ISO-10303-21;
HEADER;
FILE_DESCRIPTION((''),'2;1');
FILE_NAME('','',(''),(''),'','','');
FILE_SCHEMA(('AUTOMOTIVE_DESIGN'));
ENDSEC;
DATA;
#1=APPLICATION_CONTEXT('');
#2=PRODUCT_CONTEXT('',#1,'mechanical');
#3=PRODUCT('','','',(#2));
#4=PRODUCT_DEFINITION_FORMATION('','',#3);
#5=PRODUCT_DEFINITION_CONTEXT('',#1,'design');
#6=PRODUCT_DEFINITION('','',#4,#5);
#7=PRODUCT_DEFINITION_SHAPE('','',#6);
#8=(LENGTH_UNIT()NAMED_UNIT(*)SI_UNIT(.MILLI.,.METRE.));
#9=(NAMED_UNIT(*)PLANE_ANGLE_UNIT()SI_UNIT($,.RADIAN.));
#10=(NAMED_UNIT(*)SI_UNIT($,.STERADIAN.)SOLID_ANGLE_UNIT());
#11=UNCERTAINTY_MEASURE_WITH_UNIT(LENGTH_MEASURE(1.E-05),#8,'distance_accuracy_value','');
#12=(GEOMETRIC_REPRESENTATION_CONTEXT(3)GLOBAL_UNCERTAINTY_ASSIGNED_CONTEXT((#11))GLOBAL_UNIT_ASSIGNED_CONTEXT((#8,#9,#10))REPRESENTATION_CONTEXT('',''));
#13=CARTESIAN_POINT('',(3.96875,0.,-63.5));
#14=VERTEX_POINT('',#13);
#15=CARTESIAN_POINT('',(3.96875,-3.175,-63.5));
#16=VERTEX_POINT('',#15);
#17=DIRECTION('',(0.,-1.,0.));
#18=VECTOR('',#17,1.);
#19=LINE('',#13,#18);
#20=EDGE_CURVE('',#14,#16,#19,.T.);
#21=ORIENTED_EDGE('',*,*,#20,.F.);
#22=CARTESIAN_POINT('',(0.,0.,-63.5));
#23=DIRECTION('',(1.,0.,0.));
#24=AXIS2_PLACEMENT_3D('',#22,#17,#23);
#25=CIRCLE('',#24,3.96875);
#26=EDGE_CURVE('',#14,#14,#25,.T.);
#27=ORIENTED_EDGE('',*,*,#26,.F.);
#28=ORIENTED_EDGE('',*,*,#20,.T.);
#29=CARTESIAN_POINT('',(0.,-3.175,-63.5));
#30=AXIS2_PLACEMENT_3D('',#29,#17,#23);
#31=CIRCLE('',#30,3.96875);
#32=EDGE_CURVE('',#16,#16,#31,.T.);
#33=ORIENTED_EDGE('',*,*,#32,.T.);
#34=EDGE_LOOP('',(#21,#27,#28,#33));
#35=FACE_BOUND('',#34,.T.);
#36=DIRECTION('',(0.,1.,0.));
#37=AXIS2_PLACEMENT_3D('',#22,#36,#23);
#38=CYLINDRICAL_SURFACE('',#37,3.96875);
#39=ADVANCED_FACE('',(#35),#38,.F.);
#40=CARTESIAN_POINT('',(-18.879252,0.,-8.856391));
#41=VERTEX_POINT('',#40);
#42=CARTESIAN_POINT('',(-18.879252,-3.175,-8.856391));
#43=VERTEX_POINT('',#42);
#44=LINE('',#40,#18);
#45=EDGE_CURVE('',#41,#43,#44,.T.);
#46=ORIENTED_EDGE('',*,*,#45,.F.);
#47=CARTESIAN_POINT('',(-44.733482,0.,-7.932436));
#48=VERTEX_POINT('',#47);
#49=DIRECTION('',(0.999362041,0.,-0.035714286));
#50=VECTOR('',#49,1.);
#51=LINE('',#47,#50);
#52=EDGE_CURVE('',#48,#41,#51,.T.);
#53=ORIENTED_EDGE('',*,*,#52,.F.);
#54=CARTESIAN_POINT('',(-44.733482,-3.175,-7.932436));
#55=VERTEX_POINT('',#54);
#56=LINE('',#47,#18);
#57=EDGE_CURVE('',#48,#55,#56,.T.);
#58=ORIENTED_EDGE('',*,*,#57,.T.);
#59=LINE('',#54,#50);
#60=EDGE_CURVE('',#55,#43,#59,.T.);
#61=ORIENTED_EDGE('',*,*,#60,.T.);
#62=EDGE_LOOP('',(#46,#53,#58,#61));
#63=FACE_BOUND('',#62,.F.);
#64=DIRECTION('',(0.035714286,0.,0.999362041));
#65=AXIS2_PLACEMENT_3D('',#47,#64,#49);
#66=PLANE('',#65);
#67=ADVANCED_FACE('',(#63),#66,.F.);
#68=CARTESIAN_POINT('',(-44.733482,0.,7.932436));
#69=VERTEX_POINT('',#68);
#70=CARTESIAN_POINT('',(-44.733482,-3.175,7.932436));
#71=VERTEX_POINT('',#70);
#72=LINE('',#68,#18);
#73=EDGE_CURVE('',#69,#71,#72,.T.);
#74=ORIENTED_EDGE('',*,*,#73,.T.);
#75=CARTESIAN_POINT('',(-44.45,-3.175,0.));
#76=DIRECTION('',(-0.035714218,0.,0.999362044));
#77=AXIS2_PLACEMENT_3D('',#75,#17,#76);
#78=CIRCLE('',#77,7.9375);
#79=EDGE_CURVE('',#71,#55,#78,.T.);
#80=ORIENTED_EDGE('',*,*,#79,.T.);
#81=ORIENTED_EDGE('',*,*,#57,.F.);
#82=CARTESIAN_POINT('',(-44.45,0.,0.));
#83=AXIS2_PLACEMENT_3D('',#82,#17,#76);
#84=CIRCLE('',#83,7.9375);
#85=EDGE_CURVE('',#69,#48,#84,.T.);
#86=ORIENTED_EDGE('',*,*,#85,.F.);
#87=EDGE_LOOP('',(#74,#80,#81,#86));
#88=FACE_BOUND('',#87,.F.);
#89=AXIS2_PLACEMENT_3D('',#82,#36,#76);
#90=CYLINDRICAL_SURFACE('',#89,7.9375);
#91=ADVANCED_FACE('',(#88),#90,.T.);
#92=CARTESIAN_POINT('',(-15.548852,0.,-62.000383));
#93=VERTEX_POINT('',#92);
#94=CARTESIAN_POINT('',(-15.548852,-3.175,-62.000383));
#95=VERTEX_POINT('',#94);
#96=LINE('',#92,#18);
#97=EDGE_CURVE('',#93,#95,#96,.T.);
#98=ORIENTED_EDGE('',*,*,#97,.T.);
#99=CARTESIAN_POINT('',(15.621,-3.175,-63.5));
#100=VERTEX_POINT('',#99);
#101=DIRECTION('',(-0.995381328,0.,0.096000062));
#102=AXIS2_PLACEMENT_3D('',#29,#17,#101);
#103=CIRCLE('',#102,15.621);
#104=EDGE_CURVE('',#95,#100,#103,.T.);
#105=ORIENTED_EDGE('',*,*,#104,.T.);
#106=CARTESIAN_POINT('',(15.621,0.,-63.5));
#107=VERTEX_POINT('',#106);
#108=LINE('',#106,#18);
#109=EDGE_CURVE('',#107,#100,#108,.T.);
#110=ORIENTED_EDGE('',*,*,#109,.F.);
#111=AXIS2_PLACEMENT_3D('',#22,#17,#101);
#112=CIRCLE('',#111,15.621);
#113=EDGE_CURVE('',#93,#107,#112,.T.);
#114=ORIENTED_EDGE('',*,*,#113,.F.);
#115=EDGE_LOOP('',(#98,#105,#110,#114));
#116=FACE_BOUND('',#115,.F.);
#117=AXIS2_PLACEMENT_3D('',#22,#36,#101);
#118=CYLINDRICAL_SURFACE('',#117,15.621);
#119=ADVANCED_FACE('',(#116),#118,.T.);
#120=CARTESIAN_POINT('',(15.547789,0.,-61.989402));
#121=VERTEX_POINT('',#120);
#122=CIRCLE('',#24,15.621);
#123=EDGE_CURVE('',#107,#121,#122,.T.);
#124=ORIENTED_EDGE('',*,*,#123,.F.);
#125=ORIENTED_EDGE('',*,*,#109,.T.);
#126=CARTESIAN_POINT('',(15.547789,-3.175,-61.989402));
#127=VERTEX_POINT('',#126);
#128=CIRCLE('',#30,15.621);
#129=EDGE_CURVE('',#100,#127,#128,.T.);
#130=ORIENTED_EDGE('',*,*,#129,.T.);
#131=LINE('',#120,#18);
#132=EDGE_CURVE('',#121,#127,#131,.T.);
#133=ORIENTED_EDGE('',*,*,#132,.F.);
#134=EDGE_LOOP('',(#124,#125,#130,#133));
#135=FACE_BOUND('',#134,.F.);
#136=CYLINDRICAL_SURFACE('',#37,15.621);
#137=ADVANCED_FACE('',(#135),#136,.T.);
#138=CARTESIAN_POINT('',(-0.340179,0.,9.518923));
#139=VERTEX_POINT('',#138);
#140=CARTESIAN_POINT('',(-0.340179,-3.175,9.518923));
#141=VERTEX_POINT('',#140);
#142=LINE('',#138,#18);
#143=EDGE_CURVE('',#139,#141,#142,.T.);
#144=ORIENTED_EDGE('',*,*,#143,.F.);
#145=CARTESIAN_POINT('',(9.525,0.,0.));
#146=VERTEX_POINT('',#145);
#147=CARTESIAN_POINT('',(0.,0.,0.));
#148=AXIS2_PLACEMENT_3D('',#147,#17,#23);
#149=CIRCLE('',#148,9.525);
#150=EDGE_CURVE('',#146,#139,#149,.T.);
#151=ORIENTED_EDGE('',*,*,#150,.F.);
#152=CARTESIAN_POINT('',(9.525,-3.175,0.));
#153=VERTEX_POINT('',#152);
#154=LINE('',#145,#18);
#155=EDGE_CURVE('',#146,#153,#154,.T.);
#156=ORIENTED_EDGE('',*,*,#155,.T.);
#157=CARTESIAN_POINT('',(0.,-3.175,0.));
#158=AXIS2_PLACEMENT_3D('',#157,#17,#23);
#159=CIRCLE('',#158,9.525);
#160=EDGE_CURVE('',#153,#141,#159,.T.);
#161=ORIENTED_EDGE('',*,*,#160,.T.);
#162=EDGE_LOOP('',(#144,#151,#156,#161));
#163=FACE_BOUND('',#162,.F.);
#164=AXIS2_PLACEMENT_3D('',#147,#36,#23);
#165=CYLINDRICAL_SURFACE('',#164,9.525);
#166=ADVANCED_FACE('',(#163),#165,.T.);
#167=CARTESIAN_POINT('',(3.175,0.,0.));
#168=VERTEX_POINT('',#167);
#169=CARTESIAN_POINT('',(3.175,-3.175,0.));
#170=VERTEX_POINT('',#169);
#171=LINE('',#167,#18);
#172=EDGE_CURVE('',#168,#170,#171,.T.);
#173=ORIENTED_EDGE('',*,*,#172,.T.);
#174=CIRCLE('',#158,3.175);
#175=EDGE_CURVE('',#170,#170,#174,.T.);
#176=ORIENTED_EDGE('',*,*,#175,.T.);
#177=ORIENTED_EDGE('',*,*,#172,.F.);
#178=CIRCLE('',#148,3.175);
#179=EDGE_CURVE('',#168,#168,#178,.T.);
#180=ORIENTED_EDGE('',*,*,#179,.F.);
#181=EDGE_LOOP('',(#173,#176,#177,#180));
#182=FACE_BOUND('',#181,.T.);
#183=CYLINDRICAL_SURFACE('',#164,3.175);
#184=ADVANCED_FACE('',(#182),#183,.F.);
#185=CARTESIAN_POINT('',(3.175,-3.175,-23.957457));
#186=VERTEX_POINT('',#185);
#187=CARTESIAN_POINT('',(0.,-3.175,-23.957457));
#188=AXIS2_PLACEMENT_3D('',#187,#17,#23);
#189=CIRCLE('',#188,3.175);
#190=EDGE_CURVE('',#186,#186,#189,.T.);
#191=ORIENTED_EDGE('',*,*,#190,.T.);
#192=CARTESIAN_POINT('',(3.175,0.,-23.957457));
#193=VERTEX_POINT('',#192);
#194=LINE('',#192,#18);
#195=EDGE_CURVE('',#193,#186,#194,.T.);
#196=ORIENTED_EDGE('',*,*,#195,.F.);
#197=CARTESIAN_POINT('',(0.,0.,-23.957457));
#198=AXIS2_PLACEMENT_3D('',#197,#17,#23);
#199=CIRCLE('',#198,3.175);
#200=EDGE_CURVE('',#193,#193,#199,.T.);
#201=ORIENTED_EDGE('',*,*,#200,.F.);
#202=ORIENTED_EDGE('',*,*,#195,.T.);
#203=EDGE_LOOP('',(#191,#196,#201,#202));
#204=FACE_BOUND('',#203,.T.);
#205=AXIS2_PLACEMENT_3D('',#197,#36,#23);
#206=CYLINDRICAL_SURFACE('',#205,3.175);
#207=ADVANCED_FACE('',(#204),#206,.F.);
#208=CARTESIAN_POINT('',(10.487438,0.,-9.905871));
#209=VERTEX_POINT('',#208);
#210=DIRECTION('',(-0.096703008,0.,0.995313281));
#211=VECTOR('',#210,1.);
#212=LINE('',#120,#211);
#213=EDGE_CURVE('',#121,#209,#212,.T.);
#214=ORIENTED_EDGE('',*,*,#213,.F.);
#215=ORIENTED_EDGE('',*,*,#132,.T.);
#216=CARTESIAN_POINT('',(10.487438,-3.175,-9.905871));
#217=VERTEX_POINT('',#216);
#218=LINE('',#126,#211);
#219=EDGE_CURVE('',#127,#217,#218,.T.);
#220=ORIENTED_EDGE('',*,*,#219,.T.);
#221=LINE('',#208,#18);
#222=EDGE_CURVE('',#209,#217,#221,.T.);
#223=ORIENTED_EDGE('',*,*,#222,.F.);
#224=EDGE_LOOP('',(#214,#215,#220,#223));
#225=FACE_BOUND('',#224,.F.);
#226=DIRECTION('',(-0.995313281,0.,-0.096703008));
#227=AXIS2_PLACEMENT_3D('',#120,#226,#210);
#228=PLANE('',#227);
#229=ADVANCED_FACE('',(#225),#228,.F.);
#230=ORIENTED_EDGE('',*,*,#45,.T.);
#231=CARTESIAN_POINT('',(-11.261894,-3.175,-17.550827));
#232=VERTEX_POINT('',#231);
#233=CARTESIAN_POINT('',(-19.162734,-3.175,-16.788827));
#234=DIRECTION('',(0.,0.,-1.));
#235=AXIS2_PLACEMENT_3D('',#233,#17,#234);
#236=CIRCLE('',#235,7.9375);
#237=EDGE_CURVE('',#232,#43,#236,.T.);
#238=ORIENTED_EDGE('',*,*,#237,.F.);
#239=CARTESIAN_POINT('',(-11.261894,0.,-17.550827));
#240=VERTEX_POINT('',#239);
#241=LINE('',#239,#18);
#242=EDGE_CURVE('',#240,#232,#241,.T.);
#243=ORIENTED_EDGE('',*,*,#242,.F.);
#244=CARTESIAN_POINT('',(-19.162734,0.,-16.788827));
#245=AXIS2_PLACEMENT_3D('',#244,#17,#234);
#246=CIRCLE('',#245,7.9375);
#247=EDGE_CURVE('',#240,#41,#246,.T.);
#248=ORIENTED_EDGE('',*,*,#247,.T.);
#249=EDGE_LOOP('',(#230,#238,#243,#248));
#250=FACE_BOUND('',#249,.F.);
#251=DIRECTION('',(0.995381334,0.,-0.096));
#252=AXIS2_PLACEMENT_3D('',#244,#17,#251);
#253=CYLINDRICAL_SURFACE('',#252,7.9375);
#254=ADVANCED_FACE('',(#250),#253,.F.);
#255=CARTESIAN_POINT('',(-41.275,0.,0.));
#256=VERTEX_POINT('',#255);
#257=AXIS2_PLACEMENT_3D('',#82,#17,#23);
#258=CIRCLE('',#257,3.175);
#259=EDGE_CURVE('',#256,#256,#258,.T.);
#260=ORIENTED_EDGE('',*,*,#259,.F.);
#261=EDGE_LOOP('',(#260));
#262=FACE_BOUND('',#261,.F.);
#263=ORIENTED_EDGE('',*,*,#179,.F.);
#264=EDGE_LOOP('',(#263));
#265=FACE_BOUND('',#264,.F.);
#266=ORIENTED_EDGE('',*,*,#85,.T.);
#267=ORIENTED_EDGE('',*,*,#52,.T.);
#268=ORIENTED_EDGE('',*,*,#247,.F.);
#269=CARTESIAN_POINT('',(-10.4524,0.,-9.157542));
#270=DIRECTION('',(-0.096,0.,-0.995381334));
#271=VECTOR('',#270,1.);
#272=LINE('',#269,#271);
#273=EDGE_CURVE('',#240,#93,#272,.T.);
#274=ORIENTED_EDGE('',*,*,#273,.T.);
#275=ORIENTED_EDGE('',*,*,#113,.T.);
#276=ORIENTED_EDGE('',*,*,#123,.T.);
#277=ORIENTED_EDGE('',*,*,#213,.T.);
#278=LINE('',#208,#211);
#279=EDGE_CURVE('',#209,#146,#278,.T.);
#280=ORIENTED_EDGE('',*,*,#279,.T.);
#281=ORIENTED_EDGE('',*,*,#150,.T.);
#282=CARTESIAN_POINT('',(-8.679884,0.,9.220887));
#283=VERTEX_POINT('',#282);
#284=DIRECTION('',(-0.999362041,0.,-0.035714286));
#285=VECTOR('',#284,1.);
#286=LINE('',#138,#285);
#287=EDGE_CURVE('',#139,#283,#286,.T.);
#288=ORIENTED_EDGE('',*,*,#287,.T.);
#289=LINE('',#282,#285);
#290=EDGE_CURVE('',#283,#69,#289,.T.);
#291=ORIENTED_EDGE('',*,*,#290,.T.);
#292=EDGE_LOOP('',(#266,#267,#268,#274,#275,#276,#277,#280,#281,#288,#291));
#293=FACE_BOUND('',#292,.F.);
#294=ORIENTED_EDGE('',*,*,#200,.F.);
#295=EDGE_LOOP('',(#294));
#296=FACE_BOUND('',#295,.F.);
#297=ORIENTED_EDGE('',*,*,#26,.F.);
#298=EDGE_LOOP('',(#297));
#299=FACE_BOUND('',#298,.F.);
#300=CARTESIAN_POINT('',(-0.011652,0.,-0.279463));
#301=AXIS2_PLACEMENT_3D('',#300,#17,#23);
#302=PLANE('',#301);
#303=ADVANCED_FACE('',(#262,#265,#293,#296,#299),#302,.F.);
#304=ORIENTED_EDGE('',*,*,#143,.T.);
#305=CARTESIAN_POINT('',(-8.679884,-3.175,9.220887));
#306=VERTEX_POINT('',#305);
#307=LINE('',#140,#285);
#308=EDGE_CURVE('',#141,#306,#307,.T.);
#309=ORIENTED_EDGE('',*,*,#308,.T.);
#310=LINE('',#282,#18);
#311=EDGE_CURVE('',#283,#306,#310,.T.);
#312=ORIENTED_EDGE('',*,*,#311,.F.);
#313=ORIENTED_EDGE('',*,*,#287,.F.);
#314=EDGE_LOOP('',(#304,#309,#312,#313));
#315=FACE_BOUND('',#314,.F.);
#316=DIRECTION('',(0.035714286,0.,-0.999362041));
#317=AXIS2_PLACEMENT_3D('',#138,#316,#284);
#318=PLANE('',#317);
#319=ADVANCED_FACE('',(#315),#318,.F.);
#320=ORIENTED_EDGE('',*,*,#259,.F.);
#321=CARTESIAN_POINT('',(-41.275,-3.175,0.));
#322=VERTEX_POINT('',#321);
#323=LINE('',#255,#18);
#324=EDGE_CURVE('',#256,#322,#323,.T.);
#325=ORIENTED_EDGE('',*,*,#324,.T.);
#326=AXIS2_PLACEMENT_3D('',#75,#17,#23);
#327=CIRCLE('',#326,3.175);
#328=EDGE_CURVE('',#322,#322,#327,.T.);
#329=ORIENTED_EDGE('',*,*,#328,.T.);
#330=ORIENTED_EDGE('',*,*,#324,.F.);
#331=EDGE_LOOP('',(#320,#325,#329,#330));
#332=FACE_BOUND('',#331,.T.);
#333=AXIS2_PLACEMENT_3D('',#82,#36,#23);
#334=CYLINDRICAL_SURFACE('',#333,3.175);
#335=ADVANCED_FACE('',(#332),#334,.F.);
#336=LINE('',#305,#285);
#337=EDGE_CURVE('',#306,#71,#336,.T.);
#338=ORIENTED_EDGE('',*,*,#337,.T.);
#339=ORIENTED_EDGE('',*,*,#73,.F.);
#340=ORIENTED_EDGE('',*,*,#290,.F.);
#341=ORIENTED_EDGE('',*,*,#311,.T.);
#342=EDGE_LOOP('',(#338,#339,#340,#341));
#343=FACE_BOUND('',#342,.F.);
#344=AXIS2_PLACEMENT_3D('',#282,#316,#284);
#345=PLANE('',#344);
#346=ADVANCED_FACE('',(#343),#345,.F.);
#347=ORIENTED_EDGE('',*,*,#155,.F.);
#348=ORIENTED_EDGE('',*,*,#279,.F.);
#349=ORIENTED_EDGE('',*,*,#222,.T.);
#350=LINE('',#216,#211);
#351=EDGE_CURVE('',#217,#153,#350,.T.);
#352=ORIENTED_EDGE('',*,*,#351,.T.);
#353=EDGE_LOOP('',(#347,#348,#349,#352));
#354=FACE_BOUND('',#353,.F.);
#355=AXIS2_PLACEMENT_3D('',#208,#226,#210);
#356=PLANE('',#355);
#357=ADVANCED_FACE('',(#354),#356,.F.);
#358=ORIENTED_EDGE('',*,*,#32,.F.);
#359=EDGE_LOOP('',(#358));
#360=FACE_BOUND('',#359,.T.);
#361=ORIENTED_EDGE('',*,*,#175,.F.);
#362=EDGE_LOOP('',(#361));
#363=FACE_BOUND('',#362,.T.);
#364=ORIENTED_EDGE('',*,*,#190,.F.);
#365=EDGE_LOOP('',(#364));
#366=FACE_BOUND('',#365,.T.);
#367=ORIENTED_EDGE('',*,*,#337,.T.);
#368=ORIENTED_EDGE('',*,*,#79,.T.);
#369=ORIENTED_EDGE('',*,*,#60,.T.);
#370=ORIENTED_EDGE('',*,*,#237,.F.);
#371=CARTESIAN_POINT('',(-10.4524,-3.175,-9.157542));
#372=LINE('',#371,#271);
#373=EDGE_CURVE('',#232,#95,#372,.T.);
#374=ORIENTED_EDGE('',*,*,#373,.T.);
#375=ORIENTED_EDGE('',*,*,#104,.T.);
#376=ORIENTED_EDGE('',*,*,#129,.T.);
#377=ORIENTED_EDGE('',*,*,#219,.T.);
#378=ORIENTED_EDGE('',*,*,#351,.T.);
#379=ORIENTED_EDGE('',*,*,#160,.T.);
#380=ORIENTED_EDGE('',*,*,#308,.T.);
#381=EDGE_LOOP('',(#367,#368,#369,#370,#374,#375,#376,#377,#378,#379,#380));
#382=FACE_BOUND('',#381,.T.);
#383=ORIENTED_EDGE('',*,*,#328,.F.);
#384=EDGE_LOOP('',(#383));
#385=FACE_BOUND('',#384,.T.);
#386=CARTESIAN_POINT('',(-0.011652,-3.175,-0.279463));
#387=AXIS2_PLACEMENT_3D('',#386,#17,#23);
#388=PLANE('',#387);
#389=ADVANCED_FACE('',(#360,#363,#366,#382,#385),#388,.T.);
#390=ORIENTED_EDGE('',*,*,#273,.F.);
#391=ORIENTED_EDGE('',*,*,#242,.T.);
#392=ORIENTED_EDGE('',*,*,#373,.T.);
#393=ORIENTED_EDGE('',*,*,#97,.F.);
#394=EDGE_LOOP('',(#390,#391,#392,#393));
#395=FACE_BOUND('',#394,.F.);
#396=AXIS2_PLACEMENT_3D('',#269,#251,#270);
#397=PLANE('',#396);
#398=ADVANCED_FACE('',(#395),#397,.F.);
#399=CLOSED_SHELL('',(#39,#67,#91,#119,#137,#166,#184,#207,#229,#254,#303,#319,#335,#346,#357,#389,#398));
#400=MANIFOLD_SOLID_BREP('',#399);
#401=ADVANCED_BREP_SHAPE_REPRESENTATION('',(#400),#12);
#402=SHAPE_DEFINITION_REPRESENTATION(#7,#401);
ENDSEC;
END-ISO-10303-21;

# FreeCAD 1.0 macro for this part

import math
import FreeCAD as App
import Part
import Sketcher

V = App.Vector
Q = App.Units.Quantity


def edges_at(feature, points):
    """Names of the edges that pass closest to the given points."""
    edges = feature.Shape.Edges
    near = lambda p: min(range(len(edges)), key=lambda i: edges[i].distToShape(Part.Vertex(*p))[0])
    return sorted({f"Edge{near(p) + 1}" for p in points})

doc = App.newDocument("Part")
params = doc.addObject("Spreadsheet::Sheet", "Params")
for row, (alias, value) in enumerate([
    ("sketch1_diameter", "0.25 in"),
    ("sketch1_diameter2", "0.3125 in"),
    ("sketch1_radius", "0.375 in"),
    ("sketch1_radius2", "0.3125 in"),
    ("sketch1_radius3", "0.615 in"),
    ("pad1_length", "0.125 in"),
    ("fillet_radius", "0.3125 in"),
], start=1):
    params.set(f"A{row}", alias)
    params.set(f"B{row}", "=" + value)
    params.setAlias(f"B{row}", alias)

body = doc.addObject("PartDesign::Body", "Body")

sketch1 = body.newObject("Sketcher::SketchObject", "Sketch")
sketch1.AttachmentSupport = (doc.getObject("XZ_Plane"), [""])
sketch1.MapMode = "FlatFace"
sketch1.addGeometry([
    Part.LineSegment(V(10.5, -9.9, 0), V(9.5, 0, 0)),
    Part.ArcOfCircle(Part.Circle(V(0, 0, 0), V(0, 0, 1), 9.5), math.radians(0), math.radians(92)),
    Part.LineSegment(V(-0.3, 9.5, 0), V(-8.7, 9.2, 0)),
    Part.LineSegment(V(-8.7, 9.2, 0), V(-44.7, 7.9, 0)),
    Part.ArcOfCircle(Part.Circle(V(-44.5, 0, 0), V(0, 0, 1), 7.9), math.radians(92), math.radians(268)),
    Part.LineSegment(V(-44.7, -7.9, 0), V(-10.5, -9.2, 0)),
    Part.LineSegment(V(-10.5, -9.2, 0), V(-15.5, -62, 0)),
    Part.ArcOfCircle(Part.Circle(V(0, -63.5, 0), V(0, 0, 1), 15.6), math.radians(174), math.radians(360)),
    Part.ArcOfCircle(Part.Circle(V(0, -63.5, 0), V(0, 0, 1), 15.6), math.radians(0), math.radians(5.55)),
    Part.LineSegment(V(15.5, -62, 0), V(10.5, -9.9, 0)),
    Part.Circle(V(0, -63.5, 0), V(0, 0, 1), 4),
    Part.Circle(V(-44.5, 0, 0), V(0, 0, 1), 3.2),
    Part.Circle(V(0, -24, 0), V(0, 0, 1), 3.2),
    Part.Circle(V(0, 0, 0), V(0, 0, 1), 3.2),
], False)
sketch1.addConstraint([
    Sketcher.Constraint("Coincident", 0, 2, 1, 1),
    Sketcher.Constraint("Tangent", 1, 2, 2, 1),
    Sketcher.Constraint("Coincident", 2, 2, 3, 1),
    Sketcher.Constraint("Tangent", 3, 2, 4, 1),
    Sketcher.Constraint("Tangent", 4, 2, 5, 1),
    Sketcher.Constraint("Coincident", 5, 2, 6, 1),
    Sketcher.Constraint("Tangent", 6, 2, 7, 1),
    Sketcher.Constraint("Tangent", 7, 2, 8, 1),
    Sketcher.Constraint("Tangent", 8, 2, 9, 1),
    Sketcher.Constraint("Coincident", 9, 2, 0, 1),
    Sketcher.Constraint("Coincident", 1, 3, -1, 1),
    Sketcher.Constraint("Coincident", 13, 3, -1, 1),
    Sketcher.Constraint("Coincident", 10, 3, 7, 3),
    Sketcher.Constraint("Coincident", 11, 3, 4, 3),
    Sketcher.Constraint("Equal", 7, 8),
    Sketcher.Constraint("Equal", 11, 12),
    Sketcher.Constraint("Equal", 12, 13),
    Sketcher.Constraint("Symmetric", 3, 2, 4, 2, -1),
    Sketcher.Constraint("PointOnObject", 7, 3, -2),
    Sketcher.Constraint("PointOnObject", 12, 3, -2),
    Sketcher.Constraint("PointOnObject", 0, 2, -1),
    Sketcher.Constraint("Parallel", 2, 3),
    Sketcher.Constraint("Parallel", 0, 9),
    Sketcher.Constraint("Horizontal", 10, 3, 7, 2),
    Sketcher.Constraint("Diameter", 11, Q("0.25 in")),
    Sketcher.Constraint("Diameter", 10, Q("0.3125 in")),
    Sketcher.Constraint("Radius", 1, Q("0.375 in")),
    Sketcher.Constraint("Radius", 4, Q("0.3125 in")),
    Sketcher.Constraint("Radius", 7, Q("0.615 in")),
    Sketcher.Constraint("DistanceY", 7, 3, -1, 1, Q("2.5 in")),
    Sketcher.Constraint("DistanceX", 4, 3, -1, 1, Q("1.75 in")),
    Sketcher.Constraint("DistanceX", 5, 2, -1, 1, Q("10.4524 mm")),
    Sketcher.Constraint("Distance", 2, Q("8.345029 mm")),
    Sketcher.Constraint("Distance", 9, Q("52.328782 mm")),
    Sketcher.Constraint("DistanceY", 12, 3, 1, 2, Q("33.476381 mm")),
])
sketch1.setExpression("Constraints[24]", "Params.sketch1_diameter")
sketch1.setExpression("Constraints[25]", "Params.sketch1_diameter2")
sketch1.setExpression("Constraints[26]", "Params.sketch1_radius")
sketch1.setExpression("Constraints[27]", "Params.sketch1_radius2")
sketch1.setExpression("Constraints[28]", "Params.sketch1_radius3")
pad1 = body.newObject("PartDesign::Pad", "Pad")
pad1.Profile = sketch1
pad1.setExpression("Length", "Params.pad1_length")
doc.recompute()

fillet = body.newObject("PartDesign::Fillet", "Fillet")
fillet.Base = (pad1, edges_at(pad1, [(-10.452, -1.587, -9.158)]))
fillet.setExpression("Radius", "Params.fillet_radius")

doc.recompute()
